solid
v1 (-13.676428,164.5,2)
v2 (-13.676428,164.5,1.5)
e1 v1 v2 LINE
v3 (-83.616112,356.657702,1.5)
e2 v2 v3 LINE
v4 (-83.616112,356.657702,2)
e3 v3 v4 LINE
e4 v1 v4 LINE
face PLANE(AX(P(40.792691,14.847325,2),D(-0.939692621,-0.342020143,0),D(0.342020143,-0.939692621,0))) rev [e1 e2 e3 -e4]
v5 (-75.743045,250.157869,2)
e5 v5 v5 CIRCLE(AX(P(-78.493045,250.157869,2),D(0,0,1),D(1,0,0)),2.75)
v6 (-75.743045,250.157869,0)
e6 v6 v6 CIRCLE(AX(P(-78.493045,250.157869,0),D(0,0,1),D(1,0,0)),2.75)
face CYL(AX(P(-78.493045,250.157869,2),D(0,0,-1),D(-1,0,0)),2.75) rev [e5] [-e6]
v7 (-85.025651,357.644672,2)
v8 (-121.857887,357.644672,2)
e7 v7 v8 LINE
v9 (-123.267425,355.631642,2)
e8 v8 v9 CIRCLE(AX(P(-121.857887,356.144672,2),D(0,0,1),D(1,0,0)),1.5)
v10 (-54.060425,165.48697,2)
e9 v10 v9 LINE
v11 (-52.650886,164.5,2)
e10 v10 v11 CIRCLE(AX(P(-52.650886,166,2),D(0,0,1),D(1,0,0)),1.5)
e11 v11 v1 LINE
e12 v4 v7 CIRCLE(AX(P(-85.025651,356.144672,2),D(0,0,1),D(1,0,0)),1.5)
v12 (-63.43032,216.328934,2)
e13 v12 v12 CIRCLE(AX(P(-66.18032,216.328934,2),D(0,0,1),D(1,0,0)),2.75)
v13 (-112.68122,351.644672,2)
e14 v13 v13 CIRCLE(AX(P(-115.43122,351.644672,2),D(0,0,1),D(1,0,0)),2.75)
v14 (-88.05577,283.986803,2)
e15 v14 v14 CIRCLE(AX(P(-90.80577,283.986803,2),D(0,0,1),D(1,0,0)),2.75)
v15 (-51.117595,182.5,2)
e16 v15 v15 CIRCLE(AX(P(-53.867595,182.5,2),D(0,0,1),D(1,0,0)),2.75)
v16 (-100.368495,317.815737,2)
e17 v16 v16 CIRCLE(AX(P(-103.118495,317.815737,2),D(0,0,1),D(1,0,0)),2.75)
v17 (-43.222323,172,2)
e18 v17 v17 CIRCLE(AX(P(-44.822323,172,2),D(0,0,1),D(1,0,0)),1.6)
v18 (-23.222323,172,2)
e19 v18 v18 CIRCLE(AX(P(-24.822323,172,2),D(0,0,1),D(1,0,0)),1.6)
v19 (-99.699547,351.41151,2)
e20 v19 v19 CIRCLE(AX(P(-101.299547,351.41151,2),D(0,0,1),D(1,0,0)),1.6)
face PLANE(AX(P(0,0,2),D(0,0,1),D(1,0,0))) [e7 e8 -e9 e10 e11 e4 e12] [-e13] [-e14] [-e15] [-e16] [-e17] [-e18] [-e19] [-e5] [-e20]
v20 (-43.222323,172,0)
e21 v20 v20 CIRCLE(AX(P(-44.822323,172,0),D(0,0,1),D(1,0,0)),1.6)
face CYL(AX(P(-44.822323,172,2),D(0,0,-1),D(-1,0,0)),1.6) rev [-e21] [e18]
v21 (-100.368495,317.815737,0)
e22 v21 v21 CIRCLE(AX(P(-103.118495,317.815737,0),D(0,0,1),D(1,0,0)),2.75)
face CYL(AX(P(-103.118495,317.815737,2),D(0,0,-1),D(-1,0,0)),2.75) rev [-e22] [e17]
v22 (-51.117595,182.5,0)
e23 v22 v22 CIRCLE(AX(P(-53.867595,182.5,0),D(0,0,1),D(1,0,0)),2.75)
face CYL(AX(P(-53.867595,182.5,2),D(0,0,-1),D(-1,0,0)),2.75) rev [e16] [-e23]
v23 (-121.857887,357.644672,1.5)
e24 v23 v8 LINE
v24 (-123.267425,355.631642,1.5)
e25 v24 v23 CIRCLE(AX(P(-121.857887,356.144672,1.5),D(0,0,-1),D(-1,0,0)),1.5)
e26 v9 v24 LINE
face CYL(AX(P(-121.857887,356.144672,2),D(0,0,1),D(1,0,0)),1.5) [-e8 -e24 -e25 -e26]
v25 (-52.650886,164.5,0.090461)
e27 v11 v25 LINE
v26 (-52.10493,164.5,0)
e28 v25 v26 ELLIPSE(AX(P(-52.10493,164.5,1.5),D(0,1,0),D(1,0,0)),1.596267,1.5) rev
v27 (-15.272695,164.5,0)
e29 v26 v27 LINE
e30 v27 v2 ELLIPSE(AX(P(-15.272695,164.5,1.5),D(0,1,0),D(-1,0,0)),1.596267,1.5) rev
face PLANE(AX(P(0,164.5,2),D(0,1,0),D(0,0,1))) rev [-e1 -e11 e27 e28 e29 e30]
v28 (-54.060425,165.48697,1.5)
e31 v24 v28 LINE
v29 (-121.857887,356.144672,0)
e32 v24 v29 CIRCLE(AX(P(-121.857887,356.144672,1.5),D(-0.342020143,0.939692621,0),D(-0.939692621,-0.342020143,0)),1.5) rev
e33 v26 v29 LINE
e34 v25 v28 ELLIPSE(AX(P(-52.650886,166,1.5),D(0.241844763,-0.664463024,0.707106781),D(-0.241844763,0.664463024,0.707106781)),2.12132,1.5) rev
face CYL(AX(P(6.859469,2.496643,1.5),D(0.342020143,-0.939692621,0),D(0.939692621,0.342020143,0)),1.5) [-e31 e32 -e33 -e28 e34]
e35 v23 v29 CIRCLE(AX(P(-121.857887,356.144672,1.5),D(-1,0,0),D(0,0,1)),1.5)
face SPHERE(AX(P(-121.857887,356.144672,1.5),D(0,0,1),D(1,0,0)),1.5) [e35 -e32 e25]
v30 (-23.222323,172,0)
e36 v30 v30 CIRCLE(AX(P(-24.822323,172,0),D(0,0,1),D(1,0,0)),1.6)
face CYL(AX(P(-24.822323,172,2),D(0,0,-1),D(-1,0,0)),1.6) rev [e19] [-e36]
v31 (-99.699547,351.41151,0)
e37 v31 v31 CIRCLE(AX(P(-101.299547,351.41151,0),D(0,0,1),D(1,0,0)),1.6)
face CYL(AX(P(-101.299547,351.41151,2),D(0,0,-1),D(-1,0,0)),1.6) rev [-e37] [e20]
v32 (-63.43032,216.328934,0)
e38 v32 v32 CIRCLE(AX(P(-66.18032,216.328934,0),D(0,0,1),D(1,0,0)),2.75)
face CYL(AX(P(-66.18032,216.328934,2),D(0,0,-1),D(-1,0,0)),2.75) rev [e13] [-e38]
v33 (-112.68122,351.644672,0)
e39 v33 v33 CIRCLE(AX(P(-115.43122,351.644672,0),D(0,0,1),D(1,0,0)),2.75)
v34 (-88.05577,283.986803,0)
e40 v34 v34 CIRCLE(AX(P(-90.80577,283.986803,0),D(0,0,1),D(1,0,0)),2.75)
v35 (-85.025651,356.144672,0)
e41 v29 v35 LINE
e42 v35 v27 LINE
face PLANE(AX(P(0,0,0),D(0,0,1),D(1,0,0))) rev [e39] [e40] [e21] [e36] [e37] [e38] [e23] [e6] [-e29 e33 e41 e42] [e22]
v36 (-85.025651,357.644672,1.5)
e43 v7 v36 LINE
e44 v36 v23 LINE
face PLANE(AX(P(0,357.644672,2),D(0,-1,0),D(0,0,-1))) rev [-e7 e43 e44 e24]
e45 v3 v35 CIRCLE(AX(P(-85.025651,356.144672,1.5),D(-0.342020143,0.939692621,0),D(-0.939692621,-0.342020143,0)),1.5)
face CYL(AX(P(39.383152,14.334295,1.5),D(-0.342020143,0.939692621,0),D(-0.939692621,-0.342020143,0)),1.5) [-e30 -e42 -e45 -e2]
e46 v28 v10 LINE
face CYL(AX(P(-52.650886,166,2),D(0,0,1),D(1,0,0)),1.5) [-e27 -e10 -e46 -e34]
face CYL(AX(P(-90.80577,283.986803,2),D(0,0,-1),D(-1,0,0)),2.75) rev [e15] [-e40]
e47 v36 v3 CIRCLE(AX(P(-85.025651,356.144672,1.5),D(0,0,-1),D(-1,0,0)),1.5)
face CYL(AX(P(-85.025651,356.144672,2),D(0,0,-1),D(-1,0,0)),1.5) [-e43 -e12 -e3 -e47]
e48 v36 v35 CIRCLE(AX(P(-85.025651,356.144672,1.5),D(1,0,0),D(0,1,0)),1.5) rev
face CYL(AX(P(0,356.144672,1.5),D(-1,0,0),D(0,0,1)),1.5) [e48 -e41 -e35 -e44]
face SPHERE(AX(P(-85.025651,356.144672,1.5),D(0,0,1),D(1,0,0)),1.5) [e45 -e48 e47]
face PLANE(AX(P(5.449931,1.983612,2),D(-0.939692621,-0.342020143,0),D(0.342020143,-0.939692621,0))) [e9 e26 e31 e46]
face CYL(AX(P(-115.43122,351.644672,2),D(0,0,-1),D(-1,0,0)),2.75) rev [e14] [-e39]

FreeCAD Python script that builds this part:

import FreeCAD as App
import Part
import Sketcher
Q = App.Units.Quantity


def edges_at(feature, points):
    """Names of the edges that pass closest to the given points."""
    edges = feature.Shape.Edges
    near = lambda p: min(range(len(edges)), key=lambda i: edges[i].distToShape(Part.Vertex(*p))[0])
    return sorted({f"Edge{near(p) + 1}" for p in points})


def add_polygon(sketch, points):
    """Adds a closed chain of lines whose ends are joined by coincident constraints."""
    first, n = sketch.GeometryCount, len(points)
    for a, b in zip(points, points[1:] + points[:1]):
        sketch.addGeometry(Part.LineSegment(App.Vector(*a, 0), App.Vector(*b, 0)), False)
    for i in range(n):
        sketch.addConstraint(Sketcher.Constraint("Coincident", first + i, 2, first + (i + 1) % n, 1))

doc = App.newDocument("Part")
body = doc.addObject("PartDesign::Body", "Body")

# Sketch on XY plane
sketch1 = body.newObject("Sketcher::SketchObject", "Sketch")
sketch1.AttachmentSupport = (doc.getObject("XY_Plane"), [""])
sketch1.MapMode = "FlatFace"
add_polygon(sketch1, [(-13.7, 164.5), (-84, 357.6), (-124, 357.6), (-53.7, 164.5)])  # lines 0-3
sketch1.addGeometry(Part.Circle(App.Vector(-78.5, 250.2, 0), App.Vector(0, 0, 1), 2.8), False)  # 4
sketch1.addGeometry(Part.Circle(App.Vector(-53.9, 182.5, 0), App.Vector(0, 0, 1), 2.8), False)  # 5
sketch1.addGeometry(Part.Circle(App.Vector(-66.2, 216.3, 0), App.Vector(0, 0, 1), 2.8), False)  # 6
sketch1.addGeometry(Part.Circle(App.Vector(-44.8, 172, 0), App.Vector(0, 0, 1), 1.6), False)  # 7
sketch1.addGeometry(Part.Circle(App.Vector(-24.8, 172, 0), App.Vector(0, 0, 1), 1.6), False)  # 8
sketch1.addGeometry(Part.Circle(App.Vector(-90.8, 284, 0), App.Vector(0, 0, 1), 2.8), False)  # 9
sketch1.addGeometry(Part.Circle(App.Vector(-103.1, 317.8, 0), App.Vector(0, 0, 1), 2.8), False)  # 10
sketch1.addGeometry(Part.Circle(App.Vector(-115.4, 351.6, 0), App.Vector(0, 0, 1), 2.8), False)  # 11
sketch1.addGeometry(Part.Circle(App.Vector(-101.3, 351.4, 0), App.Vector(0, 0, 1), 1.6), False)  # 12
sketch1.addConstraint(Sketcher.Constraint("Horizontal", 1))
sketch1.addConstraint(Sketcher.Constraint("Horizontal", 3))
sketch1.addConstraint(Sketcher.Constraint("Equal", 4, 5))
sketch1.addConstraint(Sketcher.Constraint("Equal", 5, 6))
sketch1.addConstraint(Sketcher.Constraint("Equal", 7, 8))
sketch1.addConstraint(Sketcher.Constraint("Equal", 6, 9))
sketch1.addConstraint(Sketcher.Constraint("Equal", 9, 10))
sketch1.addConstraint(Sketcher.Constraint("Equal", 10, 11))
sketch1.addConstraint(Sketcher.Constraint("Equal", 8, 12))
sketch1.addConstraint(Sketcher.Constraint("Parallel", 0, 2))
sketch1.addConstraint(Sketcher.Constraint("Horizontal", 7, 3, 8, 3))
sketch1.addConstraint(Sketcher.Constraint("Diameter", 4, Q("5.5 mm")))
sketch1.addConstraint(Sketcher.Constraint("Diameter", 7, Q("3.2 mm")))
sketch1.addConstraint(Sketcher.Constraint("Angle", 0, Q("110 deg")))
sketch1.addConstraint(Sketcher.Constraint("DistanceY", -1, 1, 7, 3, Q("172 mm")))
sketch1.addConstraint(Sketcher.Constraint("DistanceX", 7, 3, 8, 3, Q("20 mm")))
sketch1.addConstraint(Sketcher.Constraint("DistanceY", 11, 3, 0, 2, Q("6 mm")))
sketch1.addConstraint(Sketcher.Constraint("DistanceY", 2, 2, 5, 3, Q("18 mm")))
sketch1.addConstraint(Sketcher.Constraint("DistanceY", -1, 1, 5, 3, Q("182.5 mm")))
sketch1.addConstraint(Sketcher.Constraint("DistanceX", 1, 2, 1, 1, Q("40.024769 mm")))
sketch1.addConstraint(Sketcher.Constraint("DistanceX", 10, 3, 5, 3, Q("49.250901 mm")))
sketch1.addConstraint(Sketcher.Constraint("DistanceX", 11, 3, 6, 3, Q("49.250901 mm")))
sketch1.addConstraint(Sketcher.Constraint("DistanceX", 12, 3, 4, 3, Q("22.806502 mm")))
sketch1.addConstraint(Sketcher.Constraint("DistanceY", -1, 1, 4, 3, Q("250.157869 mm")))
sketch1.addConstraint(Sketcher.Constraint("DistanceX", 6, 3, -1, 1, Q("66.18032 mm")))
sketch1.addConstraint(Sketcher.Constraint("DistanceX", 9, 3, -1, 1, Q("90.80577 mm")))
sketch1.addConstraint(Sketcher.Constraint("DistanceY", -1, 1, 11, 3, Q("351.644672 mm")))
sketch1.addConstraint(Sketcher.Constraint("DistanceY", -1, 1, 12, 3, Q("351.41151 mm")))
sketch1.addConstraint(Sketcher.Constraint("DistanceX", 0, 2, -1, 1, Q("83.97534 mm")))
sketch1.addConstraint(Sketcher.Constraint("DistanceX", 4, 3, 5, 3, Q("24.62545 mm")))
sketch1.addConstraint(Sketcher.Constraint("DistanceX", 5, 3, 7, 3, Q("9.045272 mm")))
sketch1.addConstraint(Sketcher.Constraint("DistanceY", 6, 3, 9, 3, Q("67.657869 mm")))
sketch1.addConstraint(Sketcher.Constraint("DistanceY", 4, 3, 10, 3, Q("67.657869 mm")))
sketch1.addConstraint(Sketcher.Constraint("DistanceY", 9, 3, 11, 3, Q("67.657869 mm")))
sketch1.addConstraint(Sketcher.Constraint("DistanceX", 1, 2, 12, 3, Q("22.700562 mm")))
pad1 = body.newObject("PartDesign::Pad", "Pad")
pad1.Profile = sketch1
pad1.Length = 2
doc.recompute()

fillet = body.newObject("PartDesign::Fillet", "Fillet")
fillet.Base = (pad1, edges_at(pad1, [
    (-88.851, 261.072, 0),
    (-103.988, 357.645, 0),
    (-48.826, 261.072, 0),
    (-53.701, 164.5, 1),
    (-124, 357.645, 1),
    (-83.975, 357.645, 1),
]))
fillet.Radius = 1.5

doc.recompute()
